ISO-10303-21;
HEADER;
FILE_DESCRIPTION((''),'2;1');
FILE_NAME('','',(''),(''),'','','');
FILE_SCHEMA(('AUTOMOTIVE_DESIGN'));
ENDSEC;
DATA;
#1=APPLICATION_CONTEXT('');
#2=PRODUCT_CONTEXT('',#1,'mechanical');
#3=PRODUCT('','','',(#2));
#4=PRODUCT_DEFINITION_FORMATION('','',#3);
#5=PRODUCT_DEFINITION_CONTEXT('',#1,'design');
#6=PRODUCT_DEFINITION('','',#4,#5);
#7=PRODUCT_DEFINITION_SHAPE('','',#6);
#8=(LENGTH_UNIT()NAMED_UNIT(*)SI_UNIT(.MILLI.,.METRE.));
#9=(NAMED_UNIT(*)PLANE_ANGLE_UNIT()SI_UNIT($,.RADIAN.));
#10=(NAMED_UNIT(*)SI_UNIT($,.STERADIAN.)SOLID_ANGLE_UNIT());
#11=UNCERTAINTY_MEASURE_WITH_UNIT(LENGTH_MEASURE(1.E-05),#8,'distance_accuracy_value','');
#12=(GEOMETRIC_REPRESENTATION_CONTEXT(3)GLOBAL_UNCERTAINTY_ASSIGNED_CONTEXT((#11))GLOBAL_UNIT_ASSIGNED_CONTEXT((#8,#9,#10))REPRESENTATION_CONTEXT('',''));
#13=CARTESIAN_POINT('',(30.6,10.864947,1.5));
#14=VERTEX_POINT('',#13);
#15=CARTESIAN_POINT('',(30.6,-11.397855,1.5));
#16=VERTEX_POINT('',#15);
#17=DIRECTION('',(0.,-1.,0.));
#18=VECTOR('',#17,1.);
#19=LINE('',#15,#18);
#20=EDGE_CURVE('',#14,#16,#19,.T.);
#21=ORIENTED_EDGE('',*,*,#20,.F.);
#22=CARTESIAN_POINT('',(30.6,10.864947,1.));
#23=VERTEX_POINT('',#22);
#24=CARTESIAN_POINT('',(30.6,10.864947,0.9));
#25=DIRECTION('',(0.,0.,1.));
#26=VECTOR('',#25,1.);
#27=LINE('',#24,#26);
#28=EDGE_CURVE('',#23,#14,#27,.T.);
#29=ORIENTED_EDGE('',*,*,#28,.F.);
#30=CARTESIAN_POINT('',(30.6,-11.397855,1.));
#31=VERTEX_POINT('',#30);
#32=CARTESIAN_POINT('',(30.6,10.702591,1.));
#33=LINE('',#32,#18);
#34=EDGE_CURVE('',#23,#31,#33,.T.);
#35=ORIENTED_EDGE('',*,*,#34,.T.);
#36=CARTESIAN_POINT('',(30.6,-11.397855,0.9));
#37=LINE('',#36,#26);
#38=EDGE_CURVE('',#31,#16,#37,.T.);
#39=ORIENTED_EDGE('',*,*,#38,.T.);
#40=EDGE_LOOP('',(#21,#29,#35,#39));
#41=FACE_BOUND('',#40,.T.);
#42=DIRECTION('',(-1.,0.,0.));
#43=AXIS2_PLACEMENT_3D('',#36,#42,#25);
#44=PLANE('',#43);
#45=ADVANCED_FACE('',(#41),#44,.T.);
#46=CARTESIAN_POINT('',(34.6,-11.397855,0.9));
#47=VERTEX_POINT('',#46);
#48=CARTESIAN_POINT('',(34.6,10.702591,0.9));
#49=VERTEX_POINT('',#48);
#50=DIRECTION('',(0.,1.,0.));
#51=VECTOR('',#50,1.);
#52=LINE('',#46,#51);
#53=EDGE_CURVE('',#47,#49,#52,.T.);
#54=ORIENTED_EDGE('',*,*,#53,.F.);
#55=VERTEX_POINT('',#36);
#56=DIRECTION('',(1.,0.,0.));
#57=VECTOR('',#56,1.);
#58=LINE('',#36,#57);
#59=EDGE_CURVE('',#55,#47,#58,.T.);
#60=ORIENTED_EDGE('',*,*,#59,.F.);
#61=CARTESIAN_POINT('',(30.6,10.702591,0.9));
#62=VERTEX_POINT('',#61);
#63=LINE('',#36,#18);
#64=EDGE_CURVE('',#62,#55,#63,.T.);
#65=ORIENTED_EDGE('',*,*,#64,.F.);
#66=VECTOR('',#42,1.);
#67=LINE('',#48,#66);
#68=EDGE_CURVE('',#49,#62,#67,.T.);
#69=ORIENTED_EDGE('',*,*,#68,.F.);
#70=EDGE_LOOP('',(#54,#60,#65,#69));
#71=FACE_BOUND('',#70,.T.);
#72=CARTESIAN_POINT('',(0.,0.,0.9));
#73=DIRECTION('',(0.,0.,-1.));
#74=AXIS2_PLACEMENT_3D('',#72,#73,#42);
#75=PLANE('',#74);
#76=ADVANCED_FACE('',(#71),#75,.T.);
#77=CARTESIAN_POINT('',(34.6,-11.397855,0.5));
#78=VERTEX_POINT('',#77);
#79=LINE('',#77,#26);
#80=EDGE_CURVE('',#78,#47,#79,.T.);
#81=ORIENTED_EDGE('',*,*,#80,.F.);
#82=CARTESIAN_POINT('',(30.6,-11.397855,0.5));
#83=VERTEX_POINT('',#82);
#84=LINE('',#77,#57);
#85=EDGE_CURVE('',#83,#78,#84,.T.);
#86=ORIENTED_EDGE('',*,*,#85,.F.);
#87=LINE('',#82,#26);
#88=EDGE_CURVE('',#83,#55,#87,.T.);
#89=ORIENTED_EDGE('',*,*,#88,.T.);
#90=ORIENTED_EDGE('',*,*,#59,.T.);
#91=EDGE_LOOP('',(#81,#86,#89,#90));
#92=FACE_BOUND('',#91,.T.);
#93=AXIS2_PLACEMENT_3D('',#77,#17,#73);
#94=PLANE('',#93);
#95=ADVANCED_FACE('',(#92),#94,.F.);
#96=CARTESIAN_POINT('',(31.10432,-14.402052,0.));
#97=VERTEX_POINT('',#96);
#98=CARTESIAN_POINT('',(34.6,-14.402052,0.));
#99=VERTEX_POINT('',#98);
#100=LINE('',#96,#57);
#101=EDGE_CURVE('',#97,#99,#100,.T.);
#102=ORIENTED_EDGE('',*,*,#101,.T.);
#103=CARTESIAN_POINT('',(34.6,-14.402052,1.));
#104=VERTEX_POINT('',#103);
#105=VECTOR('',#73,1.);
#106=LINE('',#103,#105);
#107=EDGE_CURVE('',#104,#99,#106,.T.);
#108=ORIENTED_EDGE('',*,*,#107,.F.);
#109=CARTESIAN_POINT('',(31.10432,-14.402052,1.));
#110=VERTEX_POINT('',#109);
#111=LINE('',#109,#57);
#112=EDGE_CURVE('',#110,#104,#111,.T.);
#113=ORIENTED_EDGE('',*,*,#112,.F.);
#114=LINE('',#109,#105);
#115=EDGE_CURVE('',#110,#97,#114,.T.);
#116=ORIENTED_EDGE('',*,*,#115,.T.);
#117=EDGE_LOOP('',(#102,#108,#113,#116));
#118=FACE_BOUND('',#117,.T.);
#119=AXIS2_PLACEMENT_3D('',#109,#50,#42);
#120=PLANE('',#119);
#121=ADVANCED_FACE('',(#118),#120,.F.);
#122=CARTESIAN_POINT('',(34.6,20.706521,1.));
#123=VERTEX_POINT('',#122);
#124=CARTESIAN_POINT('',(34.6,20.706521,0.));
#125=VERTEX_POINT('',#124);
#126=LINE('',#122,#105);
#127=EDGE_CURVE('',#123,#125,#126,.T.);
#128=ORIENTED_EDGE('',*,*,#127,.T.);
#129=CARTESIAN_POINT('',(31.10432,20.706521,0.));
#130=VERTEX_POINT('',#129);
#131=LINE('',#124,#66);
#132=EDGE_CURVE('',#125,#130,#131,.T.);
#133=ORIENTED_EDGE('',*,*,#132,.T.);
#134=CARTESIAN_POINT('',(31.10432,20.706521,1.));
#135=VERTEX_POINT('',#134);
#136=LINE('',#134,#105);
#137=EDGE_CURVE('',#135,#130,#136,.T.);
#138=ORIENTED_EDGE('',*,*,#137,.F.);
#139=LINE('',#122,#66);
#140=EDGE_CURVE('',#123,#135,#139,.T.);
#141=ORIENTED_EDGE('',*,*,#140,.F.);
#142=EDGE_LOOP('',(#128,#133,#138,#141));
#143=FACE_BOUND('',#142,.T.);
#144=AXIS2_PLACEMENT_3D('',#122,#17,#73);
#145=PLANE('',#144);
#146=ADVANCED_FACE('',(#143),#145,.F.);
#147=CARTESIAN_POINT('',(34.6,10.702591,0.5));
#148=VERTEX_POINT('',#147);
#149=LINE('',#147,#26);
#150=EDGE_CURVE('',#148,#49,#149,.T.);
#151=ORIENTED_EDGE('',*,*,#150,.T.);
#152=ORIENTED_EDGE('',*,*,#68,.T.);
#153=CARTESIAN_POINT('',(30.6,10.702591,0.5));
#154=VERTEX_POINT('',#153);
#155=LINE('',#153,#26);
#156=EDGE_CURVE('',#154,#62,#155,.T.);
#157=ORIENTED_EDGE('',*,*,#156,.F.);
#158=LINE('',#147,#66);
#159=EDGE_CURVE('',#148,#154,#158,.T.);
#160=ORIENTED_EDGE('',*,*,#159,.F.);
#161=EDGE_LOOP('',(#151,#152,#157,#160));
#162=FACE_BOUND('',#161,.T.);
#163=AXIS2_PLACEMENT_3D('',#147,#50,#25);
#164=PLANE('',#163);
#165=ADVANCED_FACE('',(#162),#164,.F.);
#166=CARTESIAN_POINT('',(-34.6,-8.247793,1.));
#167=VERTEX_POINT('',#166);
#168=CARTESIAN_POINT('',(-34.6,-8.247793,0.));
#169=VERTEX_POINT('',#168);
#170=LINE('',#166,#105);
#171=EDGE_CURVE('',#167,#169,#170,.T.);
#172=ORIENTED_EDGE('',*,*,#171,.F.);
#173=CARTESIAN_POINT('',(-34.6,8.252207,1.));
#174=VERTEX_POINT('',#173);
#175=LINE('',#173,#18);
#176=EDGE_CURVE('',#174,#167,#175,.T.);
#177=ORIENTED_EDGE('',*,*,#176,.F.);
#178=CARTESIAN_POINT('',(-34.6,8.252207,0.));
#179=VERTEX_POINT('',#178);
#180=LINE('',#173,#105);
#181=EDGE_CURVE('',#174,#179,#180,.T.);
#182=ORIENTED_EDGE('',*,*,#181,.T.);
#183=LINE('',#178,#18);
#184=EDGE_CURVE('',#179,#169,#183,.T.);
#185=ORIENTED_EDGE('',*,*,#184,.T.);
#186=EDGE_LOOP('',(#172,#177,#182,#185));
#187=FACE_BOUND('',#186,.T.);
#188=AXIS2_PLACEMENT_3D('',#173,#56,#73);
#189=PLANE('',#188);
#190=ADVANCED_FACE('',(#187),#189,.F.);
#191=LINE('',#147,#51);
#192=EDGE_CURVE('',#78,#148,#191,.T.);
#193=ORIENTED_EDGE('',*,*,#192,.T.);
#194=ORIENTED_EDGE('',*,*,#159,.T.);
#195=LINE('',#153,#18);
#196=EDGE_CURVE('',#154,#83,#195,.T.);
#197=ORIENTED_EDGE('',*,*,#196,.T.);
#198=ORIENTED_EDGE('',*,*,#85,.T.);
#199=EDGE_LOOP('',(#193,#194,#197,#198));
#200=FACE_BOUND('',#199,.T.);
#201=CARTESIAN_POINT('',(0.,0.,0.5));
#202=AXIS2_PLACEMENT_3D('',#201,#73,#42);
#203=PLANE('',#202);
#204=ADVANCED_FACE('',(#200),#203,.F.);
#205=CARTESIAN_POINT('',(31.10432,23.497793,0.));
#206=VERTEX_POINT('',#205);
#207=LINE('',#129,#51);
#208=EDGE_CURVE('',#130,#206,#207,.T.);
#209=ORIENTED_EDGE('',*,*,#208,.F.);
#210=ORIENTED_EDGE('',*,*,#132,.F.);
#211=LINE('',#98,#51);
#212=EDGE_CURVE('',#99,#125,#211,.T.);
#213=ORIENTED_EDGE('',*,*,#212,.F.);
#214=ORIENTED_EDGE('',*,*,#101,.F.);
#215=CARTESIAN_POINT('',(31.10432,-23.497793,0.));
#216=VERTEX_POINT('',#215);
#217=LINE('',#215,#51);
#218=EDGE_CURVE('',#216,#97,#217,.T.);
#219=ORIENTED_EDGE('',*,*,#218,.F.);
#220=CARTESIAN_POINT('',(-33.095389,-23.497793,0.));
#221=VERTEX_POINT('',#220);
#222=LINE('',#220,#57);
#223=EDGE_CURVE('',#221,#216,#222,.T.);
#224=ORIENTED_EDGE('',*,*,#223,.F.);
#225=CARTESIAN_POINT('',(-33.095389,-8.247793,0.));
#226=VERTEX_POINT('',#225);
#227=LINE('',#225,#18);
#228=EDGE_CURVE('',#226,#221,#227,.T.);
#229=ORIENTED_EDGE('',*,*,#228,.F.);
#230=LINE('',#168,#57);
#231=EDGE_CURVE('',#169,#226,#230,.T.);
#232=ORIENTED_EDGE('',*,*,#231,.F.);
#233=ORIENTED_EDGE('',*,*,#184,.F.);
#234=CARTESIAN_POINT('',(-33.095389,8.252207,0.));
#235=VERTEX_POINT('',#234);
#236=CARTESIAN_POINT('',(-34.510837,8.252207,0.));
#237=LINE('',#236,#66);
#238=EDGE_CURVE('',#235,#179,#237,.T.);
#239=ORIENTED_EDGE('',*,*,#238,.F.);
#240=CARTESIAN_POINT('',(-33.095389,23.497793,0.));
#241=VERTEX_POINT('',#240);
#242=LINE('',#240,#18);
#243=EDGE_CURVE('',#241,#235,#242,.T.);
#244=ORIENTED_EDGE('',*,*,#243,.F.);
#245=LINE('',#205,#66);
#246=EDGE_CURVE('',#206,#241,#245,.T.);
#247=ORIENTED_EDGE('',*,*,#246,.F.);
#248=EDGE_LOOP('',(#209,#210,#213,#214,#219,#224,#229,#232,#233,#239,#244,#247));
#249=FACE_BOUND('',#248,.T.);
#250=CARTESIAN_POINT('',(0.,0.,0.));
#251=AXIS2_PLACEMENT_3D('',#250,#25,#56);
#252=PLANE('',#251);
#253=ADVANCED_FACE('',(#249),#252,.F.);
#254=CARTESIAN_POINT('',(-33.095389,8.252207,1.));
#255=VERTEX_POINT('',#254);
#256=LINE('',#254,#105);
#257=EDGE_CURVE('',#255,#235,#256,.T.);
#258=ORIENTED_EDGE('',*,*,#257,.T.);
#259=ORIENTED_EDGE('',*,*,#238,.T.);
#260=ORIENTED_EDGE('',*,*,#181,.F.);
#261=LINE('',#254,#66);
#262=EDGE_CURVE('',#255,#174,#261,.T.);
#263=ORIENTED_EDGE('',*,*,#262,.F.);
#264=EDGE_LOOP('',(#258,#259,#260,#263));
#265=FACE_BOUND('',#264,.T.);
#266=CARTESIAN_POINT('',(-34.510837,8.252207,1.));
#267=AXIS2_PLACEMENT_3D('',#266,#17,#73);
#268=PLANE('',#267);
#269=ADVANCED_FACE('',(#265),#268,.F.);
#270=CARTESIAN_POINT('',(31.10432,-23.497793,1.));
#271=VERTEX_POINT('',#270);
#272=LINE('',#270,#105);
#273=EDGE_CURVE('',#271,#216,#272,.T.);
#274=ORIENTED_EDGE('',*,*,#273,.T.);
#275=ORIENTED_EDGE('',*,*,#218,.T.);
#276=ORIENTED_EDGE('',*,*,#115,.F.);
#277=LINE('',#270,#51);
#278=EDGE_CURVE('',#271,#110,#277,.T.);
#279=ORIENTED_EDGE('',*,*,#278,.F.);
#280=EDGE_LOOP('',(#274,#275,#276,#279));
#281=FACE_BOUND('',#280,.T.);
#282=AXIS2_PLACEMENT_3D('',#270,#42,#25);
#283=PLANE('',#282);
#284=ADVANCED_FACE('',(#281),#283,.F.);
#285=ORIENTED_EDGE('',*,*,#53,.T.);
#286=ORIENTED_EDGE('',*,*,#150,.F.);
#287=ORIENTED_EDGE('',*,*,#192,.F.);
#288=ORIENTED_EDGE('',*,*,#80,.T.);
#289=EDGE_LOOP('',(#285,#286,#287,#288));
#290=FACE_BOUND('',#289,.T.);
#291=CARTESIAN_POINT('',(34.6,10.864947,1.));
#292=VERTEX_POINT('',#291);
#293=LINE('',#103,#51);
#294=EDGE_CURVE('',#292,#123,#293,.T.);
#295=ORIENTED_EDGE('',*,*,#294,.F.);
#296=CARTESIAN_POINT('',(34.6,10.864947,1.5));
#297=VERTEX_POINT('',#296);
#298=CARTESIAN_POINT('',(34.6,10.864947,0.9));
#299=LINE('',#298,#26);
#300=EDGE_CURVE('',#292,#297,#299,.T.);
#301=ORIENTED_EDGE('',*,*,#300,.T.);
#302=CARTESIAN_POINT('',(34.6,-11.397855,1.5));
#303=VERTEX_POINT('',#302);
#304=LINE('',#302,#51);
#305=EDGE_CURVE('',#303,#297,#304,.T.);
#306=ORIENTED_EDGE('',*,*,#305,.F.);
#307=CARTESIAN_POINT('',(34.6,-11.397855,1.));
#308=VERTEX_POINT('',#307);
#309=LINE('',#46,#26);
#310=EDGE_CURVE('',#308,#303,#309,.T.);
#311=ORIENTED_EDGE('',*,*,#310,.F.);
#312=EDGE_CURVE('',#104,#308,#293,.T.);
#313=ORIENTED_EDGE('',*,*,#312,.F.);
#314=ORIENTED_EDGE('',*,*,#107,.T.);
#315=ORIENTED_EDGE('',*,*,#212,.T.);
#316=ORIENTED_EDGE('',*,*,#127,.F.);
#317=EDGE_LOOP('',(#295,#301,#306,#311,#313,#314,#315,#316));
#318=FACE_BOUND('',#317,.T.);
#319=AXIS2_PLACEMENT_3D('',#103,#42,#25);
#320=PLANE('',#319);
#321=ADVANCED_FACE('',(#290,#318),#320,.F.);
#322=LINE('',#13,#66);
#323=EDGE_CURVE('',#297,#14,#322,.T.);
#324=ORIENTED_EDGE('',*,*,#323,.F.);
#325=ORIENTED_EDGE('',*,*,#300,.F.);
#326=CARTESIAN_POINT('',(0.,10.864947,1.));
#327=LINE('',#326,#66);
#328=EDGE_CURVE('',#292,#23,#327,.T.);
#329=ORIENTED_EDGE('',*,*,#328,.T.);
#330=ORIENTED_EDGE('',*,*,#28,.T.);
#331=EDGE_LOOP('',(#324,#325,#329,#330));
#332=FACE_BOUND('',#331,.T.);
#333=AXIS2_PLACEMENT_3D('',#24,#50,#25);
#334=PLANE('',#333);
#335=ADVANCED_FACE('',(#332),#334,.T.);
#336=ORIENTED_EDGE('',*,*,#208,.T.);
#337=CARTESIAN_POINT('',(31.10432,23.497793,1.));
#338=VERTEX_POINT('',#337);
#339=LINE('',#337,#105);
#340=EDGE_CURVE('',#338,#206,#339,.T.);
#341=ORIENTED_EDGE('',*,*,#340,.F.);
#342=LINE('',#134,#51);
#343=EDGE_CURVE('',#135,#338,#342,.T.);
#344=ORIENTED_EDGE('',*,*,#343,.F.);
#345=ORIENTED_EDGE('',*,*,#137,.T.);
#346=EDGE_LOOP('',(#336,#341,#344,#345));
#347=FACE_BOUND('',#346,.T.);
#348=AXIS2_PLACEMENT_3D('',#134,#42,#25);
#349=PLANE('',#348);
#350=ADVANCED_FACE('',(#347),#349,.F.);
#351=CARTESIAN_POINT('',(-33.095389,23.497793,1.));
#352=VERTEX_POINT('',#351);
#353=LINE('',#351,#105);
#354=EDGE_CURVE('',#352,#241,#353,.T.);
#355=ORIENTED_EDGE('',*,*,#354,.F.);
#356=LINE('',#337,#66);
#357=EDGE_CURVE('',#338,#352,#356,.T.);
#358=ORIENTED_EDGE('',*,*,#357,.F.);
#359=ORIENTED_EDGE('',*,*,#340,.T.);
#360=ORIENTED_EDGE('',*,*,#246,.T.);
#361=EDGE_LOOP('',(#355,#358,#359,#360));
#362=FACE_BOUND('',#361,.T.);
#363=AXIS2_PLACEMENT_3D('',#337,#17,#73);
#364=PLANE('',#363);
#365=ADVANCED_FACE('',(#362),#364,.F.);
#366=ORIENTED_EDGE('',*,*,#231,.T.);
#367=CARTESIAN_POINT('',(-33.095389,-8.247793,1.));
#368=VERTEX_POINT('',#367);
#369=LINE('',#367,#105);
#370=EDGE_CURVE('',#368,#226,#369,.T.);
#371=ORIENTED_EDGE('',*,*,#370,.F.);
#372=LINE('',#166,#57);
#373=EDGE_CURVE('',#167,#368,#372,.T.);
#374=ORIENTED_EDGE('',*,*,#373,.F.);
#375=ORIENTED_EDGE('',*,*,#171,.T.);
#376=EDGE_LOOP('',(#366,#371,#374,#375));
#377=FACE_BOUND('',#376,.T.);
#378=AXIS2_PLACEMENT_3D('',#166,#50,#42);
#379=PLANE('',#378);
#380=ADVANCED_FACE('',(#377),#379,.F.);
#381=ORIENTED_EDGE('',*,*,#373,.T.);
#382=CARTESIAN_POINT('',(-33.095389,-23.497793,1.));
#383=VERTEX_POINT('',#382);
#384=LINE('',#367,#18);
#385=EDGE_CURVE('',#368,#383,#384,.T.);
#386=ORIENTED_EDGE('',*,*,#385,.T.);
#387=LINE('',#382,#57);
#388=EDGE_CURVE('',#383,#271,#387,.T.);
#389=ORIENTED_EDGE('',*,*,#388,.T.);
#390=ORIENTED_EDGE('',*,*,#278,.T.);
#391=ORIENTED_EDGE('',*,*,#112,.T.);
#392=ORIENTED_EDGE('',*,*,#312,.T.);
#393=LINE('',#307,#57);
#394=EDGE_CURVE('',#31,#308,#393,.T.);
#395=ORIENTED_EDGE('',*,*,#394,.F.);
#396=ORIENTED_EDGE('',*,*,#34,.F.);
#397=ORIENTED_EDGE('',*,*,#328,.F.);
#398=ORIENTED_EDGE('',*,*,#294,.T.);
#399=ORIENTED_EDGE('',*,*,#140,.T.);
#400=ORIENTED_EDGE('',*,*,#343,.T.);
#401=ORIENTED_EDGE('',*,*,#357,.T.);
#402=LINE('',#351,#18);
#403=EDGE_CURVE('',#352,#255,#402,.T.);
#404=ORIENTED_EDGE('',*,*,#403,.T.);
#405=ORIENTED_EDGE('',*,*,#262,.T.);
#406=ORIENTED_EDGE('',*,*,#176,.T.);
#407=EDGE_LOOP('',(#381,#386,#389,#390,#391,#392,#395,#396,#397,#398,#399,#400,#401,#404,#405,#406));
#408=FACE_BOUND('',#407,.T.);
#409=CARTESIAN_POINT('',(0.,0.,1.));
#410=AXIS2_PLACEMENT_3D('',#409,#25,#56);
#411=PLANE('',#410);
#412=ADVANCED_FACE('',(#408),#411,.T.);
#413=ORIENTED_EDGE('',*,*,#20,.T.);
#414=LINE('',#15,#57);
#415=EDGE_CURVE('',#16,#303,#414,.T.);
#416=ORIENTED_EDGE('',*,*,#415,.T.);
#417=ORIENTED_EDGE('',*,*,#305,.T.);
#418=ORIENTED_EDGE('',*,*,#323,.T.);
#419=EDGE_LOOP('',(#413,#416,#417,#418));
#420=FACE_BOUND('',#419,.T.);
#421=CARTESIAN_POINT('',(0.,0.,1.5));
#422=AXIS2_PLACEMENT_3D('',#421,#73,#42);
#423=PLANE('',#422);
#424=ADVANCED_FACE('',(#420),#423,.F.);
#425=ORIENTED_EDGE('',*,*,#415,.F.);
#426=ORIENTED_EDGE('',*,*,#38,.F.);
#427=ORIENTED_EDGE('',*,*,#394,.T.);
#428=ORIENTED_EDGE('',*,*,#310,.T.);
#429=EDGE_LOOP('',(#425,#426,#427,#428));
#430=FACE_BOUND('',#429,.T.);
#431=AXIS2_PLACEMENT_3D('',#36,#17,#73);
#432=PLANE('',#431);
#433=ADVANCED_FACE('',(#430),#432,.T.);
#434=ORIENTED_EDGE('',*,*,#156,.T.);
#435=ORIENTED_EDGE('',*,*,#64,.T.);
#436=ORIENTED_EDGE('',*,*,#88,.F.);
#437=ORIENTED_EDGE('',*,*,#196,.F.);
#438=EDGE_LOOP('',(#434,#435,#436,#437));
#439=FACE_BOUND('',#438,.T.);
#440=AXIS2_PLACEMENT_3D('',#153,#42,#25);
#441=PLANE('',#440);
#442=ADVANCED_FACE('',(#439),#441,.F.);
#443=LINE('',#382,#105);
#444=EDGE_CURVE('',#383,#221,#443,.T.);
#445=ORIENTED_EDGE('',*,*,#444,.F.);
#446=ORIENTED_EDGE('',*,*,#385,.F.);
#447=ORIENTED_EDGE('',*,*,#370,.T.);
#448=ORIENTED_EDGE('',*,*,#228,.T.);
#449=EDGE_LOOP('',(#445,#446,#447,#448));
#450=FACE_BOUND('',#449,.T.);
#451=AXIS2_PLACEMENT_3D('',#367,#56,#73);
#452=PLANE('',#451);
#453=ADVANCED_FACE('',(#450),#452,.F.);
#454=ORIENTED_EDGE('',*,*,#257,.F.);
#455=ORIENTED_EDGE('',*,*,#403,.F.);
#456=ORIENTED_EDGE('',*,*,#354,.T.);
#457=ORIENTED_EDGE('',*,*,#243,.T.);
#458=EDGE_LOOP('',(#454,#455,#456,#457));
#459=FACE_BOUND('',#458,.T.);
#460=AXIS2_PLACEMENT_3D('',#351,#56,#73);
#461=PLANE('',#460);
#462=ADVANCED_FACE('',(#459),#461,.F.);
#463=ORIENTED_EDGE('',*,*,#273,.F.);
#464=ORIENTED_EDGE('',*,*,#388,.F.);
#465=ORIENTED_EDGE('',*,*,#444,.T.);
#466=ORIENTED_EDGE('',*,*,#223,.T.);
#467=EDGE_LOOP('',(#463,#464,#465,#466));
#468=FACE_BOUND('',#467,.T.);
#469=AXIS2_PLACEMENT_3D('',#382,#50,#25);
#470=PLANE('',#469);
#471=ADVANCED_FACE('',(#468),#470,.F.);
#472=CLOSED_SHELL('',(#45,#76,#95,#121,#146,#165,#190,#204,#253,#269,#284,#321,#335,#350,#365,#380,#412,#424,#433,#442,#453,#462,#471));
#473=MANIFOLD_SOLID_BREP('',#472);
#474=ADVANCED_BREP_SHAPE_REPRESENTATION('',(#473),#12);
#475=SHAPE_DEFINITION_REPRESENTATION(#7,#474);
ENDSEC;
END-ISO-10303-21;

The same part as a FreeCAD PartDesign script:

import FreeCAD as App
import Part
import Sketcher

V = App.Vector
Q = App.Units.Quantity


def add_polygon(sketch, points):
    """Adds a closed chain of lines whose ends are joined by coincident constraints."""
    first, n = sketch.GeometryCount, len(points)
    for a, b in zip(points, points[1:] + points[:1]):
        sketch.addGeometry(Part.LineSegment(App.Vector(*a, 0), App.Vector(*b, 0)), False)
    for i in range(n):
        sketch.addConstraint(Sketcher.Constraint("Coincident", first + i, 2, first + (i + 1) % n, 1))

doc = App.newDocument("Part")
body = doc.addObject("PartDesign::Body", "Body")

sketch1 = body.newObject("Sketcher::SketchObject", "Sketch")
sketch1.AttachmentSupport = (doc.getObject("XY_Plane"), [""])
sketch1.MapMode = "FlatFace"
add_polygon(sketch1, [(34.6, 20.706521), (31.10432, 20.706521), (31.10432, 23.497793), (-33.095389, 23.497793), (-33.095389, 8.252207), (-34.6, 8.252207), (-34.6, -8.247793), (-33.095389, -8.247793), (-33.095389, -23.497793), (31.10432, -23.497793), (31.10432, -14.402052), (34.6, -14.402052)])
sketch1.addConstraint([
    Sketcher.Constraint("Horizontal", 0),
    Sketcher.Constraint("Vertical", 1),
    Sketcher.Constraint("Horizontal", 2),
    Sketcher.Constraint("Vertical", 3),
    Sketcher.Constraint("Horizontal", 4),
    Sketcher.Constraint("Vertical", 5),
    Sketcher.Constraint("Horizontal", 6),
    Sketcher.Constraint("Vertical", 7),
    Sketcher.Constraint("Horizontal", 8),
    Sketcher.Constraint("Vertical", 9),
    Sketcher.Constraint("Horizontal", 10),
    Sketcher.Constraint("Vertical", 11),
    Sketcher.Constraint("Symmetric", 2, 2, 7, 2, -1),
    Sketcher.Constraint("Vertical", 1, 2, 8, 2),
    Sketcher.Constraint("DistanceY", 5, 2, 5, 1, Q("16.5 mm")),
    Sketcher.Constraint("DistanceY", 7, 2, 7, 1, Q("15.25 mm")),
    Sketcher.Constraint("DistanceX", 4, 2, -1, 1, Q("34.6 mm")),
    Sketcher.Constraint("DistanceX", -1, 1, 10, 2, Q("34.6 mm")),
    Sketcher.Constraint("DistanceX", 0, 2, 0, 1, Q("3.49568 mm")),
    Sketcher.Constraint("DistanceX", 2, 2, 2, 1, Q("64.199709 mm")),
    Sketcher.Constraint("DistanceY", 1, 1, 1, 2, Q("2.791272 mm")),
    Sketcher.Constraint("DistanceY", 9, 1, 9, 2, Q("9.095741 mm")),
    Sketcher.Constraint("DistanceY", 3, 2, 3, 1, Q("15.245586 mm")),
])
pad1 = body.newObject("PartDesign::Pad", "Pad")
pad1.Profile = sketch1
pad1.Length = 1

sketch2 = body.newObject("Sketcher::SketchObject", "Sketch001")
sketch2.AttachmentSupport = (doc.getObject("XY_Plane"), [""])
sketch2.MapMode = "FlatFace"
sketch2.AttachmentOffset = App.Placement(V(0, 0, 1), App.Rotation())
add_polygon(sketch2, [(30.6, 10.702591), (30.6, -11.397855), (34.6, -11.397855), (34.6, 10.702591)])
sketch2.addConstraint([
    Sketcher.Constraint("Vertical", 0),
    Sketcher.Constraint("Horizontal", 1),
    Sketcher.Constraint("Vertical", 2),
    Sketcher.Constraint("Horizontal", 3),
    Sketcher.Constraint("DistanceX", 1, 1, 1, 2, Q("4 mm")),
    Sketcher.Constraint("DistanceX", -1, 1, 0, 2, Q("30.6 mm")),
    Sketcher.Constraint("DistanceY", 0, 2, 0, 1, Q("22.100446 mm")),
    Sketcher.Constraint("DistanceY", -1, 1, 2, 2, Q("10.702591 mm")),
])
pocket1 = body.newObject("PartDesign::Pocket", "Pocket")
pocket1.Profile = sketch2
pocket1.Length = 0.5

sketch3 = body.newObject("Sketcher::SketchObject", "Sketch002")
sketch3.AttachmentSupport = (doc.getObject("XY_Plane"), [""])
sketch3.MapMode = "FlatFace"
sketch3.AttachmentOffset = App.Placement(V(0, 0, 1), App.Rotation())
add_polygon(sketch3, [(30.6, 10.864947), (30.6, -11.397855), (34.6, -11.397855), (34.6, 10.864947)])
sketch3.addConstraint([
    Sketcher.Constraint("Vertical", 0),
    Sketcher.Constraint("Horizontal", 1),
    Sketcher.Constraint("Vertical", 2),
    Sketcher.Constraint("Horizontal", 3),
    Sketcher.Constraint("DistanceX", 1, 1, 1, 2, Q("4 mm")),
    Sketcher.Constraint("DistanceX", -1, 1, 0, 2, Q("30.6 mm")),
    Sketcher.Constraint("DistanceY", 0, 2, 0, 1, Q("22.262803 mm")),
    Sketcher.Constraint("DistanceY", 0, 2, -1, 1, Q("11.397855 mm")),
])
pad2 = body.newObject("PartDesign::Pad", "Pad001")
pad2.Profile = sketch3
pad2.Type = "TwoLengths"
pad2.Length = 0.5
pad2.Length2 = 0.1

doc.recompute()
